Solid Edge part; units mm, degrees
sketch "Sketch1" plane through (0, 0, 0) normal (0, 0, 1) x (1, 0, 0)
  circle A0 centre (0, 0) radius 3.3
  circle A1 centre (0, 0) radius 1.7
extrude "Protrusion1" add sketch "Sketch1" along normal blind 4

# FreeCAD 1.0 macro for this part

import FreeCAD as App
import Part
import Sketcher

V = App.Vector

doc = App.newDocument("Part")
params = doc.addObject("Spreadsheet::Sheet", "Params")
for row, (alias, value) in enumerate([
    ("sketch1_diameter", "6.6 mm"),
    ("sketch1_diameter2", "3.4 mm"),
    ("pad1_length", "4 mm"),
], start=1):
    params.set(f"A{row}", alias)
    params.set(f"B{row}", "=" + value)
    params.setAlias(f"B{row}", alias)

body = doc.addObject("PartDesign::Body", "Body")

sketch1 = doc.addObject("Sketcher::SketchObject", "Sketch")
body.addObject(sketch1)
sketch1.AttachmentSupport = (doc.XY_Plane, [""])
sketch1.MapMode = "FlatFace"
sketch1.addGeometry(Part.Circle(V(0, 0, 0), V(0, 0, 1), 3.3), False)
sketch1.addGeometry(Part.Circle(V(0, 0, 0), V(0, 0, 1), 1.7), False)
sketch1.addConstraint(Sketcher.Constraint("Coincident", 0, 3, -1, 1))
sketch1.addConstraint(Sketcher.Constraint("Coincident", 1, 3, -1, 1))
sketch1.addConstraint(Sketcher.Constraint("Diameter", 0, 6.6))
sketch1.addConstraint(Sketcher.Constraint("Diameter", 1, 3.4))
sketch1.setExpression("Constraints[2]", "Params.sketch1_diameter")
sketch1.setExpression("Constraints[3]", "Params.sketch1_diameter2")
pad1 = doc.addObject("PartDesign::Pad", "Pad")
body.addObject(pad1)
pad1.Profile = sketch1
pad1.setExpression("Length", "Params.pad1_length")

doc.recompute()
